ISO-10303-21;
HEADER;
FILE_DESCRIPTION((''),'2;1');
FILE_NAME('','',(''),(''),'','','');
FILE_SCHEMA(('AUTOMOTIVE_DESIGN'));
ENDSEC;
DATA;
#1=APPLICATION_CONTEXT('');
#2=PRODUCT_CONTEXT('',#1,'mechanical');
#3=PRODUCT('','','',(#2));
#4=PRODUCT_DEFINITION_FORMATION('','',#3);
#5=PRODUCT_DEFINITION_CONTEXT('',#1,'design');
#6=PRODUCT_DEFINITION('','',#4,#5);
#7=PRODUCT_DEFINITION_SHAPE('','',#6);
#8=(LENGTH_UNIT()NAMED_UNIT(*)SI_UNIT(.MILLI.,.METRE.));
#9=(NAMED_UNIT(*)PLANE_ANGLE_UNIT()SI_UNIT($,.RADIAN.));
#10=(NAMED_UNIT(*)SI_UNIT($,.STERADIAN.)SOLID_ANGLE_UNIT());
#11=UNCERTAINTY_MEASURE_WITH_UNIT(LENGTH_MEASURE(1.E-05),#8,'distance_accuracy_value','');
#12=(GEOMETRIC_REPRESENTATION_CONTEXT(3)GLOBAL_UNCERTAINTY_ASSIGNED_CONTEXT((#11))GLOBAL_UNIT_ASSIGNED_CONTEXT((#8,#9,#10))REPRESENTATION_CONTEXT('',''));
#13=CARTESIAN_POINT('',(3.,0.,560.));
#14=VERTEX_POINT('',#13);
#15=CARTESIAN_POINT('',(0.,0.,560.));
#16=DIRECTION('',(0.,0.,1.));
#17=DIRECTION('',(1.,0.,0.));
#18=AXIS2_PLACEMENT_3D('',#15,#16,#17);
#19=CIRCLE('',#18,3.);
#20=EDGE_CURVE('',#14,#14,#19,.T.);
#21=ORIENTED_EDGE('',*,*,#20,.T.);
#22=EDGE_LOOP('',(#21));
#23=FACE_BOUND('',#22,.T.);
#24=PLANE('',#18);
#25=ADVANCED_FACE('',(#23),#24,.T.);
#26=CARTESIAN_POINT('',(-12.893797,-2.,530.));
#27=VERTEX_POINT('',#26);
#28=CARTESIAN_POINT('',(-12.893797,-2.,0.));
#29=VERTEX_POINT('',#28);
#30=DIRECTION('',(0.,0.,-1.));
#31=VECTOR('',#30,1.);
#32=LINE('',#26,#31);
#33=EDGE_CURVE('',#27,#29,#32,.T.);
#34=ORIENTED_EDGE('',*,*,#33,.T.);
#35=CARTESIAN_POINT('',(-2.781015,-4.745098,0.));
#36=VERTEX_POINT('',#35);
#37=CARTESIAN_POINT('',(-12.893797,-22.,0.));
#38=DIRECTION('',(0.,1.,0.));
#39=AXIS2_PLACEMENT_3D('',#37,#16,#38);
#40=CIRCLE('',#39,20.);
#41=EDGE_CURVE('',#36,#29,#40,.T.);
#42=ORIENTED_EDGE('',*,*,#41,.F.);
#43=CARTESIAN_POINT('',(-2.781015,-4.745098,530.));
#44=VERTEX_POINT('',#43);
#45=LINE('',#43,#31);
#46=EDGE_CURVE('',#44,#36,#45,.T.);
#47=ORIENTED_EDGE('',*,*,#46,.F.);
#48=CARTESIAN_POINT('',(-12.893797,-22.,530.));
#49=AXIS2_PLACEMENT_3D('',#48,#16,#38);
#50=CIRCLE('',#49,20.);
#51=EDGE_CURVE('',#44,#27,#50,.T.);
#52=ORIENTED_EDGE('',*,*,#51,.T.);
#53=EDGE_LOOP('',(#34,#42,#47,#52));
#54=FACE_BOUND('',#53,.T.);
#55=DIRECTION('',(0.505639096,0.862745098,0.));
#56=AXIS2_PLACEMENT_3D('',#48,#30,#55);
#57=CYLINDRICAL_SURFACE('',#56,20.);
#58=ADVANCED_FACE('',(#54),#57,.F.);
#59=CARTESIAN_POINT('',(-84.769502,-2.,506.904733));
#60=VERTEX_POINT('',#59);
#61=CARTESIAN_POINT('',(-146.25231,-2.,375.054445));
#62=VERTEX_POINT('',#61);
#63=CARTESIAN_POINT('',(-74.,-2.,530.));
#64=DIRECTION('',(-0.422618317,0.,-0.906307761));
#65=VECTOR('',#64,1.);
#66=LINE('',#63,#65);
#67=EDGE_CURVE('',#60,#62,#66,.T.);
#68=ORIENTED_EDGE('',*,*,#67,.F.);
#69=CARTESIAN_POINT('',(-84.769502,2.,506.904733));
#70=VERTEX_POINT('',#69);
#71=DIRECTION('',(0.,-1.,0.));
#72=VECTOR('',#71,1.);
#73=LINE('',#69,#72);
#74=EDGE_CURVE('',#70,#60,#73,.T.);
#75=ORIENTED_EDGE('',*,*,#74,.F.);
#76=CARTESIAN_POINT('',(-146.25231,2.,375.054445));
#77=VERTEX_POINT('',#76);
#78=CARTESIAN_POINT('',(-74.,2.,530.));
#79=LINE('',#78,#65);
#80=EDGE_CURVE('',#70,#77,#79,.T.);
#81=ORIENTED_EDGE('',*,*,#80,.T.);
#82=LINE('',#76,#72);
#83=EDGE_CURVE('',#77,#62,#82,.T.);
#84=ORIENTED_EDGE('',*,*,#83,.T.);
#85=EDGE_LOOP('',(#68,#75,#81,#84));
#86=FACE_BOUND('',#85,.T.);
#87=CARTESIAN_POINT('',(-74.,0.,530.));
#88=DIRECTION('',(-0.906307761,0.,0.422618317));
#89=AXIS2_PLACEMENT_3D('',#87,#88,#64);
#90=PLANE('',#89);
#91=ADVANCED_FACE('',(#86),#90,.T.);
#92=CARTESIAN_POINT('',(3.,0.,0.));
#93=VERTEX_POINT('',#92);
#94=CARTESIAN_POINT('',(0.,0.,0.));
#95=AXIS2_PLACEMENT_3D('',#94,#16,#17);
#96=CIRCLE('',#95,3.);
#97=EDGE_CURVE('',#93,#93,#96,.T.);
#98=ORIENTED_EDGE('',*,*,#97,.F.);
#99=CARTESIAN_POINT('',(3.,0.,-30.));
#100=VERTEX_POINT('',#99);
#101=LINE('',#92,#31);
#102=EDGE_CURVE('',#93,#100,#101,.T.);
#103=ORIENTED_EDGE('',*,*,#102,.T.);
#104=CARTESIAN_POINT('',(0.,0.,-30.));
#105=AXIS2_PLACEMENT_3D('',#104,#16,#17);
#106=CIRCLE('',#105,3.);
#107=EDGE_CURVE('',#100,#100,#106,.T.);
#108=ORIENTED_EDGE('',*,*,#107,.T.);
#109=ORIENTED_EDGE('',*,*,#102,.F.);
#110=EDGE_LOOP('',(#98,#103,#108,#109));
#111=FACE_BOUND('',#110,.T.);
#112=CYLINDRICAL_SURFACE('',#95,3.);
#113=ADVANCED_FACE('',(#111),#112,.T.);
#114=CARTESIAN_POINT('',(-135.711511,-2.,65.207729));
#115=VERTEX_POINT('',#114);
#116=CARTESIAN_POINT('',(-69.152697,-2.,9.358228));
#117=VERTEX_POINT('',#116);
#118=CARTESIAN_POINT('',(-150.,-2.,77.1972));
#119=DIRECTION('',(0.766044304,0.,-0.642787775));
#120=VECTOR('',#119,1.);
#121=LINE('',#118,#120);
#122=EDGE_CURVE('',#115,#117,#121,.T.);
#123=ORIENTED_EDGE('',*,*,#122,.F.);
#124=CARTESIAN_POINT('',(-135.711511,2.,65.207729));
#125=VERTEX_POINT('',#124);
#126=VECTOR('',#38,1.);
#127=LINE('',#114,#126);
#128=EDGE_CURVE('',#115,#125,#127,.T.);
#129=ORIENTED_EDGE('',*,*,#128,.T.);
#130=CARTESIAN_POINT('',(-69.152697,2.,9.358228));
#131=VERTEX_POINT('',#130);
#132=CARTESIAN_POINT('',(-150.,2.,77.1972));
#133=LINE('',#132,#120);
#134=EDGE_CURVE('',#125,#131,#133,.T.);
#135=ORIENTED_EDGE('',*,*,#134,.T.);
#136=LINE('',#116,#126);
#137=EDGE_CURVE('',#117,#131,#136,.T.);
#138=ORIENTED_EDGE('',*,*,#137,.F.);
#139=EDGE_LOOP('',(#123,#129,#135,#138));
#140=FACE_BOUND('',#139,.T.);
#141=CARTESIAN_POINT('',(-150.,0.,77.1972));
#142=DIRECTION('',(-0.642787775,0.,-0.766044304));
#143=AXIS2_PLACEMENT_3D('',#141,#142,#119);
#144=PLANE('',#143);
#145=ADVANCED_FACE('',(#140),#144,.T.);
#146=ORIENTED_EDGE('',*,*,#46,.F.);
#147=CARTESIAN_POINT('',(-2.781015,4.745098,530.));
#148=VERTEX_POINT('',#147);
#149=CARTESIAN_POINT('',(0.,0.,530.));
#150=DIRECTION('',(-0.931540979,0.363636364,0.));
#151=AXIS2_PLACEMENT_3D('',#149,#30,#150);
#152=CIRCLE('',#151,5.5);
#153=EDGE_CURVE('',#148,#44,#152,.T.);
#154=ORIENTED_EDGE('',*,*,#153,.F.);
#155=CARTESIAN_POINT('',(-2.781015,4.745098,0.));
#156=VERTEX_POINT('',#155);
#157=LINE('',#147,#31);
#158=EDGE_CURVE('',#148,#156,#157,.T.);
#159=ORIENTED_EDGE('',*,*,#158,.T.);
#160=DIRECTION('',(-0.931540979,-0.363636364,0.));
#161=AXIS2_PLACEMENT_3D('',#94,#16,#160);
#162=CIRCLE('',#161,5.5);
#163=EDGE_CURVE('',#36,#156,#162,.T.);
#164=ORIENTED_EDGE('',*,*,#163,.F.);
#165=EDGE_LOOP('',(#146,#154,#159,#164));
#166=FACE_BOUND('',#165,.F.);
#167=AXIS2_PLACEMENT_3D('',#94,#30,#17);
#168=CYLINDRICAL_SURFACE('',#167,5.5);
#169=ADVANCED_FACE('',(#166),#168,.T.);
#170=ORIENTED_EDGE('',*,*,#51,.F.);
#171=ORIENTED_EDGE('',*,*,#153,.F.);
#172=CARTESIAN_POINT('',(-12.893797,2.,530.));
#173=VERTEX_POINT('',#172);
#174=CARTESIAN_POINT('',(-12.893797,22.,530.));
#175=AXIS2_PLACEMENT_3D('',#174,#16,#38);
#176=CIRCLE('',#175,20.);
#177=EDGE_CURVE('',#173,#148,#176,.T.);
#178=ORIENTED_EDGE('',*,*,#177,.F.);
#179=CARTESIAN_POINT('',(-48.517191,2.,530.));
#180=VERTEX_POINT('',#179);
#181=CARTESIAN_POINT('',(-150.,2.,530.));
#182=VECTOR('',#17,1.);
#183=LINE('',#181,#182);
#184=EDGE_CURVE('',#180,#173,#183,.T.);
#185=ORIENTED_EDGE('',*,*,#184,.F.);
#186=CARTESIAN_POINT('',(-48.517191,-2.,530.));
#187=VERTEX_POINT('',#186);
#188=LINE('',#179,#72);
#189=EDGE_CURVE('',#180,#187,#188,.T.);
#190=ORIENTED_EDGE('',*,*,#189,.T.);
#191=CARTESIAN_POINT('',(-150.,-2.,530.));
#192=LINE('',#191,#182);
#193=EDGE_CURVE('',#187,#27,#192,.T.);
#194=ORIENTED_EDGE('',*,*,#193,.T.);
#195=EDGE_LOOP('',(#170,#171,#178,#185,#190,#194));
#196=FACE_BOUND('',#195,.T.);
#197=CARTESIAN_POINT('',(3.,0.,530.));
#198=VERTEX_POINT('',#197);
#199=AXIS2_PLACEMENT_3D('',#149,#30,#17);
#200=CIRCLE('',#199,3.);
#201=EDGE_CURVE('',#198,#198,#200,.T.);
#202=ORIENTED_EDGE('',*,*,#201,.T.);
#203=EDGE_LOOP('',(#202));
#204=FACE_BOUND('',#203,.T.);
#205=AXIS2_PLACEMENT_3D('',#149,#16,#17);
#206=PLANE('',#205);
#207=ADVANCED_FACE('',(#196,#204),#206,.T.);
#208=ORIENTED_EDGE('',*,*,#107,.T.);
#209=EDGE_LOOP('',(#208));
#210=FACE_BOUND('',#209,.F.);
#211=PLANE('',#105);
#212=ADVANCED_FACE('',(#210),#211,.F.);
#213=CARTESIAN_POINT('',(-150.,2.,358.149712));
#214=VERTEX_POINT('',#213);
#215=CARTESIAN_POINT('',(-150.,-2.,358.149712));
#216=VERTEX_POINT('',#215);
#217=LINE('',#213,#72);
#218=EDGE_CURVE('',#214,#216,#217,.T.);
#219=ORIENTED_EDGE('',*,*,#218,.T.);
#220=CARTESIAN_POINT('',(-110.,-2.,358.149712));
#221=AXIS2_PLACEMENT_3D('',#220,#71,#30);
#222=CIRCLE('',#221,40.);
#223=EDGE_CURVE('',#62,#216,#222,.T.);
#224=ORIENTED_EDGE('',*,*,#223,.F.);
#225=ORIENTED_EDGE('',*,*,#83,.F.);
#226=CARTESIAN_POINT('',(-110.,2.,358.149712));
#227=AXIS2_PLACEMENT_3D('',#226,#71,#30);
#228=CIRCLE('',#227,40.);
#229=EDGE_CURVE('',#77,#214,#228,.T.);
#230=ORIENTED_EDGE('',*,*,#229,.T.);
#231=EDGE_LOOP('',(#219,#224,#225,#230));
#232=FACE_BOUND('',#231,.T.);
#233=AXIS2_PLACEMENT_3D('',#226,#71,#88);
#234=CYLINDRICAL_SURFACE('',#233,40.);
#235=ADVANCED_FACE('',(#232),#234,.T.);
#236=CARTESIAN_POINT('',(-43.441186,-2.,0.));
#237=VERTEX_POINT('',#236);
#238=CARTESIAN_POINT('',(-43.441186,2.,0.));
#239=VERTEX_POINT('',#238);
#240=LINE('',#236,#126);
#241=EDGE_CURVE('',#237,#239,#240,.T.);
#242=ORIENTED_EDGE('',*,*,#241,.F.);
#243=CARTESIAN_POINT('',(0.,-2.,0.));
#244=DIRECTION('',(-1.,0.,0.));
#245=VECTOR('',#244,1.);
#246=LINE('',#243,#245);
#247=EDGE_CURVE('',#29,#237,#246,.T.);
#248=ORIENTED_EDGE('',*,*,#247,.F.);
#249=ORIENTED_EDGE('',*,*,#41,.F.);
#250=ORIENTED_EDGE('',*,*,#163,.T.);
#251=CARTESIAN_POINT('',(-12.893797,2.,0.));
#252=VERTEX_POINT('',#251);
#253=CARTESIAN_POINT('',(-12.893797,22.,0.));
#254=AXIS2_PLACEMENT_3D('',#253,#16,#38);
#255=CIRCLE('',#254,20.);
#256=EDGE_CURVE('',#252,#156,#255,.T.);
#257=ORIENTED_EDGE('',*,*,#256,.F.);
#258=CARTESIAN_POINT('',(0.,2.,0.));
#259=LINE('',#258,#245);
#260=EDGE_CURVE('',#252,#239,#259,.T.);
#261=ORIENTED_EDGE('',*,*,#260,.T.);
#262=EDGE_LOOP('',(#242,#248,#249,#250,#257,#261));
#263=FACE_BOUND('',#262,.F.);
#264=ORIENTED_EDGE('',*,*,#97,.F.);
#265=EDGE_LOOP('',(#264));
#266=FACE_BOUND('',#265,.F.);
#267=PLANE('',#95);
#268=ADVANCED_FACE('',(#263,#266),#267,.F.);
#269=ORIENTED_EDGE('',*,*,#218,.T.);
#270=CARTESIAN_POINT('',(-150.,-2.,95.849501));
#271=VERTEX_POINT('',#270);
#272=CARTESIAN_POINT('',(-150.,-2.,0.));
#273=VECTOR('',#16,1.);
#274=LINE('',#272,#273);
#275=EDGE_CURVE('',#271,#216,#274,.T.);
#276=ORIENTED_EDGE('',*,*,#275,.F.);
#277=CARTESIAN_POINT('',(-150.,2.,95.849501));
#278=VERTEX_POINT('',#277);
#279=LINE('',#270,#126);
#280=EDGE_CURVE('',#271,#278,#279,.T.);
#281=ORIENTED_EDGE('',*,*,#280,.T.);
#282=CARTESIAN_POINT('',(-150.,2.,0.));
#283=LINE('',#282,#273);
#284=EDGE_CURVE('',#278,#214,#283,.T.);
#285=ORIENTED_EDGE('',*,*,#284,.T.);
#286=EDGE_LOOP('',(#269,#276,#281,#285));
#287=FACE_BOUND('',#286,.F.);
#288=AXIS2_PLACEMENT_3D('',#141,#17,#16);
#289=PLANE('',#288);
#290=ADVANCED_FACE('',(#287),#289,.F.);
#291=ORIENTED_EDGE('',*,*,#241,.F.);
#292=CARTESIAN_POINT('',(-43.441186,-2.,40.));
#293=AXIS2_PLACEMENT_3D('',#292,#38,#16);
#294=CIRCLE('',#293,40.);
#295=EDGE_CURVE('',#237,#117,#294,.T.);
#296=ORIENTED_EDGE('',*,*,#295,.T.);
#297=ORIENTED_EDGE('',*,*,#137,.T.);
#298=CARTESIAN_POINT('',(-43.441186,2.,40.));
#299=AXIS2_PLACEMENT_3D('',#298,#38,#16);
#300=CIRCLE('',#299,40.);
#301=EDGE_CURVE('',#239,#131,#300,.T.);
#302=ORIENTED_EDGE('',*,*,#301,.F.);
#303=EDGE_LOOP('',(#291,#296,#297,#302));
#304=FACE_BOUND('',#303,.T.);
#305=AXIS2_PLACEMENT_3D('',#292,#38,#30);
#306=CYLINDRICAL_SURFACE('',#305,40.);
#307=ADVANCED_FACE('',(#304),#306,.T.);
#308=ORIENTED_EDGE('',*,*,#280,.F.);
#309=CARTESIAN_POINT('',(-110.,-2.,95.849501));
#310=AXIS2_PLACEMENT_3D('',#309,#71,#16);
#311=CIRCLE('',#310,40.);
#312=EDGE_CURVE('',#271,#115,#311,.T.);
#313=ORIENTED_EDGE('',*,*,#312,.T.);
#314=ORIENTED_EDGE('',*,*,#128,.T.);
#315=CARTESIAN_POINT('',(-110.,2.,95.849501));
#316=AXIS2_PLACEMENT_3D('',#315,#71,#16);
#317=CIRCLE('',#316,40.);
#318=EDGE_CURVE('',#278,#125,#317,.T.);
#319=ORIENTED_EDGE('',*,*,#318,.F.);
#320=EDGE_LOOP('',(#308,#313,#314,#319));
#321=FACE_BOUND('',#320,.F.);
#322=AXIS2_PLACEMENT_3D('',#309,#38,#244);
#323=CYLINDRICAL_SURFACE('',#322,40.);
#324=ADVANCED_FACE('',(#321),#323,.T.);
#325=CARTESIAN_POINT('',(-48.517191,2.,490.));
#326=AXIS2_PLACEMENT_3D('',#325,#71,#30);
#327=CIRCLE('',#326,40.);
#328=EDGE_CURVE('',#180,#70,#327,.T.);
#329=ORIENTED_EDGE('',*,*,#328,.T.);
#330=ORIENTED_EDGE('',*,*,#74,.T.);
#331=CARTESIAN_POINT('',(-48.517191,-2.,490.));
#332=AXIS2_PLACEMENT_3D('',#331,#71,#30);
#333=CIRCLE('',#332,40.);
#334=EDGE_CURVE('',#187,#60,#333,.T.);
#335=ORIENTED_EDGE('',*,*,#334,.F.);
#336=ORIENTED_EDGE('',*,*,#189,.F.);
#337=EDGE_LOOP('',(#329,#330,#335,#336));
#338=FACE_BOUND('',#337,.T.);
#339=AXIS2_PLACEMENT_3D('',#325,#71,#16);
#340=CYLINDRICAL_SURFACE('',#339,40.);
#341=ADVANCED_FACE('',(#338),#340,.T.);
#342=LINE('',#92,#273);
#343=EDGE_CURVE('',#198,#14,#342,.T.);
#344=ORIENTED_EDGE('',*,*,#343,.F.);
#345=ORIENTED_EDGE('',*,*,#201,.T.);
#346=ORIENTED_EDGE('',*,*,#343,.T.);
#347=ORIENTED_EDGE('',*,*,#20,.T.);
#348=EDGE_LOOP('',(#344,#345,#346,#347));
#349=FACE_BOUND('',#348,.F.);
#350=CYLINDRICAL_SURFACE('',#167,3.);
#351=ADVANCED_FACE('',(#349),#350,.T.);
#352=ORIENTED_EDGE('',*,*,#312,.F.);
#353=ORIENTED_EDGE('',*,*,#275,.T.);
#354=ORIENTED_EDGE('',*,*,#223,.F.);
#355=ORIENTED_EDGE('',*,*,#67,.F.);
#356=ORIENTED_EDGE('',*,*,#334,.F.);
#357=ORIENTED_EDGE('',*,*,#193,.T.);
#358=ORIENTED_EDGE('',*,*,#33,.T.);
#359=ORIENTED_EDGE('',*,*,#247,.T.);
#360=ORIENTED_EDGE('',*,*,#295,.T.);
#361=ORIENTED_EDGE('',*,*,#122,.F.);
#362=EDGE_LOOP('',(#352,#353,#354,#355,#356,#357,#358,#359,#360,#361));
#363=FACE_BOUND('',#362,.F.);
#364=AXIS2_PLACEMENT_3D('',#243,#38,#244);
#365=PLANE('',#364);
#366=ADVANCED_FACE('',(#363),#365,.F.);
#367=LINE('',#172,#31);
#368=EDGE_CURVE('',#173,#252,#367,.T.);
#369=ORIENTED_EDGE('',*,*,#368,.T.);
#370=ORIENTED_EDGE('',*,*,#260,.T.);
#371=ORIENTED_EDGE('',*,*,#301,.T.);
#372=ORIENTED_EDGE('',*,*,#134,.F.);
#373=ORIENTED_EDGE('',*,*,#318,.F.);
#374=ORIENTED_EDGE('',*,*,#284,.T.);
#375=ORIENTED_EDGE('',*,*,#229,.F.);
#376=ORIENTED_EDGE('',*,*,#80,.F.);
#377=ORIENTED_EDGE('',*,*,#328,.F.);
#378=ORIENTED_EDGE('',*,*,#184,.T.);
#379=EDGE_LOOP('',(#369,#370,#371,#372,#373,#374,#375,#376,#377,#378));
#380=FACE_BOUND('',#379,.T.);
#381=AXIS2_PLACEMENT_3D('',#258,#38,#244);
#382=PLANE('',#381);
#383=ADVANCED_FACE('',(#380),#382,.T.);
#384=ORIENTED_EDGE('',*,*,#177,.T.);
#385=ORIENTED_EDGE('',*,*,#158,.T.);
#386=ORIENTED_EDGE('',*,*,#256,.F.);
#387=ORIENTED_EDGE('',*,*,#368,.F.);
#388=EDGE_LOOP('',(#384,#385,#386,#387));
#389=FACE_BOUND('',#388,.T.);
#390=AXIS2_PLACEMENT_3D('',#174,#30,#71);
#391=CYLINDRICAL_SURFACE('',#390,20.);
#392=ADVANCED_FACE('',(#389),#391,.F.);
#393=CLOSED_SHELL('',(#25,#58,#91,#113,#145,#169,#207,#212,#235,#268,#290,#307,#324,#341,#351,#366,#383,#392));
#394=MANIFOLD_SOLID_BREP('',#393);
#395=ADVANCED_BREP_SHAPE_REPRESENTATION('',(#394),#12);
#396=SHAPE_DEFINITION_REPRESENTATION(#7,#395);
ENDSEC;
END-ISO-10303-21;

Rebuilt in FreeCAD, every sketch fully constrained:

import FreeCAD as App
import Part
import Sketcher

V = App.Vector
Q = App.Units.Quantity


def edges_at(feature, points):
    """Names of the edges that pass closest to the given points."""
    edges = feature.Shape.Edges
    near = lambda p: min(range(len(edges)), key=lambda i: edges[i].distToShape(Part.Vertex(*p))[0])
    return sorted({f"Edge{near(p) + 1}" for p in points})

doc = App.newDocument("Part")
body = doc.addObject("PartDesign::Body", "Body")

# Sketch on XY plane
sketch1 = body.newObject("Sketcher::SketchObject", "Sketch")
sketch1.AttachmentSupport = (doc.getObject("XY_Plane"), [""])
sketch1.MapMode = "FlatFace"
sketch1.addGeometry(Part.Circle(V(0, 0, 0), V(0, 0, 1), 5.5), False)
sketch1.addGeometry(Part.Circle(V(0, 0, 0), V(0, 0, 1), 3), False)
sketch1.addConstraint(Sketcher.Constraint("Coincident", 0, 3, -1, 1))
sketch1.addConstraint(Sketcher.Constraint("Coincident", 1, 3, -1, 1))
sketch1.addConstraint(Sketcher.Constraint("Diameter", 0, Q("11 mm")))
sketch1.addConstraint(Sketcher.Constraint("Diameter", 1, Q("6 mm")))
pad1 = body.newObject("PartDesign::Pad", "Pad")
pad1.Profile = sketch1
pad1.Length = 530

# Sketch on XZ plane
sketch2 = body.newObject("Sketcher::SketchObject", "Sketch001")
sketch2.AttachmentSupport = (doc.getObject("XZ_Plane"), [""])
sketch2.MapMode = "FlatFace"
sketch2.addGeometry(Part.LineSegment(V(0, 530, 0), V(0, 0, 0)), False)
sketch2.addGeometry(Part.LineSegment(V(0, 0, 0), V(-58, 0, 0)), False)
sketch2.addGeometry(Part.LineSegment(V(-58, 0, 0), V(-150, 77, 0)), False)
sketch2.addGeometry(Part.LineSegment(V(-150, 77, 0), V(-150, 367, 0)), False)
sketch2.addGeometry(Part.LineSegment(V(-150, 367, 0), V(-74, 530, 0)), False)
sketch2.addGeometry(Part.LineSegment(V(-74, 530, 0), V(0, 530, 0)), False)
sketch2.addConstraint(Sketcher.Constraint("Coincident", 0, 2, 1, 1))
sketch2.addConstraint(Sketcher.Constraint("Coincident", 1, 2, 2, 1))
sketch2.addConstraint(Sketcher.Constraint("Coincident", 2, 2, 3, 1))
sketch2.addConstraint(Sketcher.Constraint("Coincident", 3, 2, 4, 1))
sketch2.addConstraint(Sketcher.Constraint("Coincident", 4, 2, 5, 1))
sketch2.addConstraint(Sketcher.Constraint("Coincident", 5, 2, 0, 1))
sketch2.addConstraint(Sketcher.Constraint("Vertical", 0))
sketch2.addConstraint(Sketcher.Constraint("Horizontal", 1))
sketch2.addConstraint(Sketcher.Constraint("Vertical", 3))
sketch2.addConstraint(Sketcher.Constraint("Horizontal", 5))
sketch2.addConstraint(Sketcher.Constraint("Coincident", 0, 2, -1, 1))
sketch2.addConstraint(Sketcher.Constraint("DistanceX", 1, 2, 1, 1, Q("58 mm")))
sketch2.addConstraint(Sketcher.Constraint("DistanceX", 5, 1, 5, 2, Q("74 mm")))
sketch2.addConstraint(Sketcher.Constraint("DistanceY", 0, 2, 0, 1, Q("530 mm")))
sketch2.addConstraint(Sketcher.Constraint("Angle", 4, Q("65 deg")))
sketch2.addConstraint(Sketcher.Constraint("DistanceX", 2, 2, -1, 1, Q("150 mm")))
sketch2.addConstraint(Sketcher.Constraint("Angle", 2, Q("140 deg")))
pad2 = body.newObject("PartDesign::Pad", "Pad001")
pad2.Profile = sketch2
pad2.Length = 4
pad2.Midplane = True
doc.recompute()

fillet = body.newObject("PartDesign::Fillet", "Fillet")
fillet.Base = (pad2, edges_at(pad2, [
    (-74, 0, 530),
    (-150, 0, 367.017),
    (-150, 0, 77.197),
    (-58, 0, 0),
]))
fillet.Radius = 40
doc.recompute()

fillet2 = body.newObject("PartDesign::Fillet", "Fillet001")
fillet2.Base = (fillet, edges_at(fillet, [(-5.123, -2, 265), (-5.123, 2, 265)]))
fillet2.Radius = 20

# Sketch on XY plane
sketch3 = body.newObject("Sketcher::SketchObject", "Sketch002")
sketch3.AttachmentSupport = (doc.getObject("XY_Plane"), [""])
sketch3.MapMode = "FlatFace"
sketch3.addGeometry(Part.Circle(V(0, 0, 0), V(0, 0, 1), 3), False)
sketch3.addConstraint(Sketcher.Constraint("Coincident", 0, 3, -1, 1))
sketch3.addConstraint(Sketcher.Constraint("Diameter", 0, Q("6 mm")))
pad3 = body.newObject("PartDesign::Pad", "Pad002")
pad3.Profile = sketch3
pad3.Type = "TwoLengths"
pad3.Length = 560
pad3.Length2 = 30

doc.recompute()
